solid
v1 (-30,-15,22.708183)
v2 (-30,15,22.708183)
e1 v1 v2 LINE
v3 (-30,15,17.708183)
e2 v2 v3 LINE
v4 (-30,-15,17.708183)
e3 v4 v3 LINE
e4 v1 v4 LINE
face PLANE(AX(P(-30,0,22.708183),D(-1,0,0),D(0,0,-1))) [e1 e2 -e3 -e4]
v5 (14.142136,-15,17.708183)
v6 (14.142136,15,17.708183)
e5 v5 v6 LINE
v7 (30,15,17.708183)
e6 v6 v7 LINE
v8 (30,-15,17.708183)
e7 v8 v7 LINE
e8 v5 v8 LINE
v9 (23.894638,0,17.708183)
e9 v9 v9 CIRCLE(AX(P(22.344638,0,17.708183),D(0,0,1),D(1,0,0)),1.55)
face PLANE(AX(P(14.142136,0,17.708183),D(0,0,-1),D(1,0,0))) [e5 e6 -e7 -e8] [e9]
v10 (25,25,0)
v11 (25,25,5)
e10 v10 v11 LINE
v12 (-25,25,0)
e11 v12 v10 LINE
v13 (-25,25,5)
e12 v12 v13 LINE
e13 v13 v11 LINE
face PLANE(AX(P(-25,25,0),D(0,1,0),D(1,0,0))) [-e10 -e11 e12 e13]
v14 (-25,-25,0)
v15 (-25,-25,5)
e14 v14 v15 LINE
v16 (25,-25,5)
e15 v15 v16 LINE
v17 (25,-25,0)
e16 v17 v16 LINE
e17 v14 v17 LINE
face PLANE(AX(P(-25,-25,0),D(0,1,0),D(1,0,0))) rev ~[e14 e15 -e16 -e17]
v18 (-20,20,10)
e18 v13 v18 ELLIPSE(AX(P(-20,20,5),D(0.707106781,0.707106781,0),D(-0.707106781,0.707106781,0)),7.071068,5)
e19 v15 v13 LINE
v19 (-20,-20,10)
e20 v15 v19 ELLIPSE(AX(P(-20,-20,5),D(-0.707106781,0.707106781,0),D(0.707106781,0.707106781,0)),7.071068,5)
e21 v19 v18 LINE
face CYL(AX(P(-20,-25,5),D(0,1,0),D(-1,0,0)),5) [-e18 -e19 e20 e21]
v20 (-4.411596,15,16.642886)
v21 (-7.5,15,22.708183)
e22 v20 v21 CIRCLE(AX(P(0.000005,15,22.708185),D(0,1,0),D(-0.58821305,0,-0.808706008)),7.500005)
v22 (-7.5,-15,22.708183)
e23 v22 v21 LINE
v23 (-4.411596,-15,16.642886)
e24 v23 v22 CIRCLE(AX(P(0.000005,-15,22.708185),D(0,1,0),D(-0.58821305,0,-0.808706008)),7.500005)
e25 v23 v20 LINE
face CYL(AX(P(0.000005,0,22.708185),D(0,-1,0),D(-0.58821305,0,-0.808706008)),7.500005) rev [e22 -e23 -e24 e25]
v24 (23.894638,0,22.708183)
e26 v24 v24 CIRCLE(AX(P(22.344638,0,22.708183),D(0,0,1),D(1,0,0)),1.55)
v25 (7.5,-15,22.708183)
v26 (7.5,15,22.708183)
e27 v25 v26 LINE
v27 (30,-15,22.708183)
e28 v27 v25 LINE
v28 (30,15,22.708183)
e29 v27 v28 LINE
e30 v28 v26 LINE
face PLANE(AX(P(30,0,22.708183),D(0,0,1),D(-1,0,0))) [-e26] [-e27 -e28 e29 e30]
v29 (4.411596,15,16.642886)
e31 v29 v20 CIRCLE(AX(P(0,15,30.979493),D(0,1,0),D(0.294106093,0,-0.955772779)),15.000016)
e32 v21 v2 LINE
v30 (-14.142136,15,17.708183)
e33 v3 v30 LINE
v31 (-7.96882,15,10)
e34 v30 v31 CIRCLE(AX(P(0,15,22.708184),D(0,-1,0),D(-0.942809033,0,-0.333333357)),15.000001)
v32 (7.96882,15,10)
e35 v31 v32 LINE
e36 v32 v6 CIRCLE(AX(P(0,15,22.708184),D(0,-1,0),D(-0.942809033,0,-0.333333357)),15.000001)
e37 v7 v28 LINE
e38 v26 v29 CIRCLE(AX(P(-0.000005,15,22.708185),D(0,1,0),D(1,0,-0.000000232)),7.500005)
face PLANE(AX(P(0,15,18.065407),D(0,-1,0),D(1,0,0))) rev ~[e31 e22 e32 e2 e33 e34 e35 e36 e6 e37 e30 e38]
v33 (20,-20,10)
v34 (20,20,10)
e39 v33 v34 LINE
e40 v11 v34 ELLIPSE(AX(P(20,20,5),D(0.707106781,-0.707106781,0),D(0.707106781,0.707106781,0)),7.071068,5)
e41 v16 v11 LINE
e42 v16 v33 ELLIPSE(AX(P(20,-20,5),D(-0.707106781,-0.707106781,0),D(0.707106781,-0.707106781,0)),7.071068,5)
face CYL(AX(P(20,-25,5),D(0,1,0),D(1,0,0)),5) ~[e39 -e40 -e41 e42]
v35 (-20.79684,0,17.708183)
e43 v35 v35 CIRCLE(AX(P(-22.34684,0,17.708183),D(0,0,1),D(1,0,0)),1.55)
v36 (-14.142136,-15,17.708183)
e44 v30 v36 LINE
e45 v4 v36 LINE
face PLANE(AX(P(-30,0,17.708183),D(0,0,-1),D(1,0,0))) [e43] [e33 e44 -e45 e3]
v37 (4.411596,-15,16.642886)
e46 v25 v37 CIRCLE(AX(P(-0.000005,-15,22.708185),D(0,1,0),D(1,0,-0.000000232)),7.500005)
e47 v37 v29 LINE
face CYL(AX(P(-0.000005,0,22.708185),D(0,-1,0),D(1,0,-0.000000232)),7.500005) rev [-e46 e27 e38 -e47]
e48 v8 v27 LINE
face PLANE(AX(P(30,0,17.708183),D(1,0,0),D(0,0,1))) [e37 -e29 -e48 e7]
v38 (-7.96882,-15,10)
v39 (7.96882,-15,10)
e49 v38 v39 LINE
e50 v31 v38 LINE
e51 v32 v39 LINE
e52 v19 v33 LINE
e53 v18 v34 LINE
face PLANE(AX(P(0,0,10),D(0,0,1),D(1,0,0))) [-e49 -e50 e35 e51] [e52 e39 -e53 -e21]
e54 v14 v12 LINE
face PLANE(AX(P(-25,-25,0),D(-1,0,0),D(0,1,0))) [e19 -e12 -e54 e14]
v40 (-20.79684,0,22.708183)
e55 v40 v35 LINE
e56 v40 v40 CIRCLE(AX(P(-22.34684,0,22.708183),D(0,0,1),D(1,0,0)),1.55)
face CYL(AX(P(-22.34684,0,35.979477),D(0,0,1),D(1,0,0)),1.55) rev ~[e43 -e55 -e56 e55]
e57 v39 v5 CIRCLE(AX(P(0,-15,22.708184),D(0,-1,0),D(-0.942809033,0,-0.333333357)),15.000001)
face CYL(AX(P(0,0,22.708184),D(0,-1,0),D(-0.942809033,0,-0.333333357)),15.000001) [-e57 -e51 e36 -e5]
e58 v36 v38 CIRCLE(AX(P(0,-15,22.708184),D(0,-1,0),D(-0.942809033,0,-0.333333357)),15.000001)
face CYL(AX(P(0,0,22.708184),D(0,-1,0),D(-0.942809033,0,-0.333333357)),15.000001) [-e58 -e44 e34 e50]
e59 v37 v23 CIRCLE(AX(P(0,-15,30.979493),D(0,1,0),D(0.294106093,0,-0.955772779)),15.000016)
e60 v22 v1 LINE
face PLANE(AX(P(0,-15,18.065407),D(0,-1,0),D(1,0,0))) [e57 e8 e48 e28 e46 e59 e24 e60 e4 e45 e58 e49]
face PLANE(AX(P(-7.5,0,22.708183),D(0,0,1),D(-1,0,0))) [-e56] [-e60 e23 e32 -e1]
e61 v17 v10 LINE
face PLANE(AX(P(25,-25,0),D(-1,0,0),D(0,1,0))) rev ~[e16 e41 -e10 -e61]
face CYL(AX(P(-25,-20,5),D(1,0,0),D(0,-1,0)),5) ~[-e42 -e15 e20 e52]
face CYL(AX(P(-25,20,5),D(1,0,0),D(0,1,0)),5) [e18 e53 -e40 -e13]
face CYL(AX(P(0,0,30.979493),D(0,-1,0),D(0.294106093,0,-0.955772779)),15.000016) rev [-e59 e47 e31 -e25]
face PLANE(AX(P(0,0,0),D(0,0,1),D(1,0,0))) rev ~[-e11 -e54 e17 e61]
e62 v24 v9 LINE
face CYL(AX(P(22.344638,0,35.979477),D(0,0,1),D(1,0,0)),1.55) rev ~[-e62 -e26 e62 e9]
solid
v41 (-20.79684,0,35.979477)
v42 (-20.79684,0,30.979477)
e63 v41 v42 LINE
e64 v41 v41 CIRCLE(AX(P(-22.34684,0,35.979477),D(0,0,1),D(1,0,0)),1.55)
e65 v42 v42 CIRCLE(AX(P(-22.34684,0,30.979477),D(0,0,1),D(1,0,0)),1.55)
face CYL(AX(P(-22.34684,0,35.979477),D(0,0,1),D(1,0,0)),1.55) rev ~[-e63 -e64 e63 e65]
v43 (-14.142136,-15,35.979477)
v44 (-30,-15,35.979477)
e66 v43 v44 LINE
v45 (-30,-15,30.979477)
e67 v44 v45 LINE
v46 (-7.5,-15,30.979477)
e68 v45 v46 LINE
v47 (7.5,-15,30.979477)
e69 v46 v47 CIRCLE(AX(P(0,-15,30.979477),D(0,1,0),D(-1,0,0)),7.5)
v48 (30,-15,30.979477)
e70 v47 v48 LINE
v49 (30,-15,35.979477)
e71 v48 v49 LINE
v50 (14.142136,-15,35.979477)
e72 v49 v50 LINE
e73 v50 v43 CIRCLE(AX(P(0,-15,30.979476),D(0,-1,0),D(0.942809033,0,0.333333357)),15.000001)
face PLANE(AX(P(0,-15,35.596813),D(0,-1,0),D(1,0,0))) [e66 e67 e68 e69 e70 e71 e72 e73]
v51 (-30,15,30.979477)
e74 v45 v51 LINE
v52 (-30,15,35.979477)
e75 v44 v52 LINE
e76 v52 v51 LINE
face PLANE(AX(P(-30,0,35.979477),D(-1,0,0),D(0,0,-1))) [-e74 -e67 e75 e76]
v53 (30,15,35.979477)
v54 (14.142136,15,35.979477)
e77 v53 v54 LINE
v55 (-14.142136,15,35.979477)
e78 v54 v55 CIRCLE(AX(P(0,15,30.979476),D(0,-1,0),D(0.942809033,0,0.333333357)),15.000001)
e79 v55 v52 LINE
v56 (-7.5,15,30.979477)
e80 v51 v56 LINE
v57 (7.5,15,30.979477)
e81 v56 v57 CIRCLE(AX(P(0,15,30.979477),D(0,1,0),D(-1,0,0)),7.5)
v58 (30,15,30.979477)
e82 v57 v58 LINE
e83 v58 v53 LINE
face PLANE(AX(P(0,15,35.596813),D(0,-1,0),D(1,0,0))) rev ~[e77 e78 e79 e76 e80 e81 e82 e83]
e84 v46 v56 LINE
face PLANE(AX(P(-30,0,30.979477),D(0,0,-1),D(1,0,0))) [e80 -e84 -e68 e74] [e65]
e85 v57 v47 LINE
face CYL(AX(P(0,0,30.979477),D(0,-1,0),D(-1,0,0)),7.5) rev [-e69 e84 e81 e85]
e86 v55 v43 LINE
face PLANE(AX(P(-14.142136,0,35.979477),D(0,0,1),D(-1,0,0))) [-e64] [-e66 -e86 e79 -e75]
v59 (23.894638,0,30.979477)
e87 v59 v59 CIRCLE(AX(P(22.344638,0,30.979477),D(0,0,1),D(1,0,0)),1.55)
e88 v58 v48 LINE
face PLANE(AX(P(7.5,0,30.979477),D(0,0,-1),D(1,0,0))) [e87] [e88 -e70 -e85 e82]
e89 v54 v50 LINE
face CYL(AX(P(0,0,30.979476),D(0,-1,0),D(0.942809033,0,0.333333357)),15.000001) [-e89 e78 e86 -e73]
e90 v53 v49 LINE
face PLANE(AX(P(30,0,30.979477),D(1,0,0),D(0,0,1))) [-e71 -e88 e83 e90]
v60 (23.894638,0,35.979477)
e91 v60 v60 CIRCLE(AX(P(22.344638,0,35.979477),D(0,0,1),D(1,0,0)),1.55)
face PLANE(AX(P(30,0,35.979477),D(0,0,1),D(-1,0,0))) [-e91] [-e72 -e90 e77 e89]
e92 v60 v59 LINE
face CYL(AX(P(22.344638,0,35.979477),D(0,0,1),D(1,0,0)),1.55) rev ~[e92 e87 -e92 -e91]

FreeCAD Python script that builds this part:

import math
import FreeCAD as App
import Part
import Sketcher
Q = App.Units.Quantity


def edges_at(feature, points):
    """Names of the edges that pass closest to the given points."""
    edges = feature.Shape.Edges
    near = lambda p: min(range(len(edges)), key=lambda i: edges[i].distToShape(Part.Vertex(*p))[0])
    return sorted({f"Edge{near(p) + 1}" for p in points})

doc = App.newDocument("Part")
body = doc.addObject("PartDesign::Body", "Body")
body.AllowCompound = True

# Sketch on XY plane
sketch1 = doc.addObject("Sketcher::SketchObject", "Sketch")
body.addObject(sketch1)
sketch1.AttachmentSupport = (doc.XY_Plane, [""])
sketch1.MapMode = "FlatFace"
sketch1.addGeometry([
    Part.LineSegment(App.Vector(-25, 25, 0), App.Vector(-25, -25, 0)),
    Part.LineSegment(App.Vector(-25, -25, 0), App.Vector(25, -25, 0)),
    Part.LineSegment(App.Vector(25, -25, 0), App.Vector(25, 25, 0)),
    Part.LineSegment(App.Vector(25, 25, 0), App.Vector(-25, 25, 0)),
], False)
sketch1.addConstraint([
    Sketcher.Constraint("Coincident", 0, 2, 1, 1),
    Sketcher.Constraint("Coincident", 1, 2, 2, 1),
    Sketcher.Constraint("Coincident", 2, 2, 3, 1),
    Sketcher.Constraint("Coincident", 3, 2, 0, 1),
    Sketcher.Constraint("Vertical", 0),
    Sketcher.Constraint("Horizontal", 1),
    Sketcher.Constraint("Vertical", 2),
    Sketcher.Constraint("Horizontal", 3),
    Sketcher.Constraint("Symmetric", 0, 2, 2, 2, -1, 1),
    Sketcher.Constraint("Equal", 3, 0),
    Sketcher.Constraint("DistanceX", 1, 1, 1, 2, Q("50 mm")),
])
pad1 = doc.addObject("PartDesign::Pad", "Pad")
body.addObject(pad1)
pad1.Profile = sketch1
pad1.Length = 10
doc.recompute()

fillet = doc.addObject("PartDesign::Fillet", "Fillet")
body.addObject(fillet)
fillet.Base = (pad1, edges_at(pad1, [
    (0, -25, 10),
    (-25, 0, 10),
    (25, 0, 10),
    (0, 25, 10),
]))
fillet.Radius = 5

# Sketch on XZ plane
sketch2 = doc.addObject("Sketcher::SketchObject", "Sketch001")
body.addObject(sketch2)
sketch2.AttachmentSupport = (doc.XZ_Plane, [""])
sketch2.MapMode = "FlatFace"
sketch2.addGeometry([
    Part.ArcOfCircle(Part.Circle(App.Vector(0, 31, 0), App.Vector(0, 0, 1), 8), math.radians(0), math.radians(180)),  # 0
    Part.LineSegment(App.Vector(8, 31, 0), App.Vector(30, 31, 0)),  # 1
    Part.LineSegment(App.Vector(30, 31, 0), App.Vector(30, 36, 0)),  # 2
    Part.LineSegment(App.Vector(30, 36, 0), App.Vector(14, 36, 0)),  # 3
    Part.ArcOfCircle(Part.Circle(App.Vector(0, 31, 0), App.Vector(0, 0, 1), 15), math.radians(19), math.radians(161)),  # 4
    Part.LineSegment(App.Vector(-14, 36, 0), App.Vector(-30, 36, 0)),  # 5
    Part.LineSegment(App.Vector(-30, 36, 0), App.Vector(-30, 31, 0)),  # 6
    Part.LineSegment(App.Vector(-30, 31, 0), App.Vector(-8, 31, 0)),  # 7
    Part.LineSegment(App.Vector(-30, 18, 0), App.Vector(-14, 18, 0)),  # 8
    Part.ArcOfCircle(Part.Circle(App.Vector(0, 23, 0), App.Vector(0, 0, 1), 15), math.radians(-161), math.radians(-19)),  # 9
    Part.LineSegment(App.Vector(14, 18, 0), App.Vector(30, 18, 0)),  # 10
    Part.LineSegment(App.Vector(30, 18, 0), App.Vector(30, 23, 0)),  # 11
    Part.LineSegment(App.Vector(30, 23, 0), App.Vector(8, 23, 0)),  # 12
    Part.ArcOfCircle(Part.Circle(App.Vector(0, 23, 0), App.Vector(0, 0, 1), 8), math.radians(-54), math.radians(0)),  # 13
    Part.ArcOfCircle(Part.Circle(App.Vector(0, 31, 0), App.Vector(0, 0, 1), 15), math.radians(-107), math.radians(-73)),  # 14
    Part.ArcOfCircle(Part.Circle(App.Vector(0, 23, 0), App.Vector(0, 0, 1), 8), math.radians(-180), math.radians(-126)),  # 15
    Part.LineSegment(App.Vector(-8, 23, 0), App.Vector(-30, 23, 0)),  # 16
    Part.LineSegment(App.Vector(-30, 23, 0), App.Vector(-30, 18, 0)),  # 17
], False)
sketch2.addConstraint([
    Sketcher.Constraint("Coincident", 0, 1, 1, 1),
    Sketcher.Constraint("Coincident", 1, 2, 2, 1),
    Sketcher.Constraint("Coincident", 2, 2, 3, 1),
    Sketcher.Constraint("Coincident", 3, 2, 4, 1),
    Sketcher.Constraint("Coincident", 4, 2, 5, 1),
    Sketcher.Constraint("Coincident", 5, 2, 6, 1),
    Sketcher.Constraint("Coincident", 6, 2, 7, 1),
    Sketcher.Constraint("Coincident", 7, 2, 0, 2),
    Sketcher.Constraint("Coincident", 8, 2, 9, 1),
    Sketcher.Constraint("Coincident", 9, 2, 10, 1),
    Sketcher.Constraint("Coincident", 10, 2, 11, 1),
    Sketcher.Constraint("Coincident", 11, 2, 12, 1),
    Sketcher.Constraint("Coincident", 12, 2, 13, 2),
    Sketcher.Constraint("Coincident", 13, 1, 14, 2),
    Sketcher.Constraint("Coincident", 14, 1, 15, 2),
    Sketcher.Constraint("Coincident", 15, 1, 16, 1),
    Sketcher.Constraint("Coincident", 16, 2, 17, 1),
    Sketcher.Constraint("Coincident", 17, 2, 8, 1),
    Sketcher.Constraint("Horizontal", 1),
    Sketcher.Constraint("Vertical", 2),
    Sketcher.Constraint("Horizontal", 3),
    Sketcher.Constraint("Horizontal", 5),
    Sketcher.Constraint("Vertical", 6),
    Sketcher.Constraint("Horizontal", 7),
    Sketcher.Constraint("Horizontal", 8),
    Sketcher.Constraint("Horizontal", 10),
    Sketcher.Constraint("Vertical", 11),
    Sketcher.Constraint("Horizontal", 12),
    Sketcher.Constraint("Horizontal", 16),
    Sketcher.Constraint("Vertical", 17),
    Sketcher.Constraint("Coincident", 4, 3, 0, 3),
    Sketcher.Constraint("Coincident", 13, 3, 9, 3),
    Sketcher.Constraint("Coincident", 15, 3, 9, 3),
    Sketcher.Constraint("Equal", 4, 9),
    Sketcher.Constraint("Equal", 13, 15),
    Sketcher.Constraint("Symmetric", 3, 2, 4, 2, -2),
    Sketcher.Constraint("Symmetric", 1, 2, 6, 2, -2),
    Sketcher.Constraint("Symmetric", 8, 2, 9, 2, -2),
    Sketcher.Constraint("Symmetric", 11, 2, 16, 2, -2),
    Sketcher.Constraint("PointOnObject", 14, 3, -2),
    Sketcher.Constraint("Horizontal", 4, 3, 0, 1),
    Sketcher.Constraint("Horizontal", 15, 3, 11, 2),
    Sketcher.Constraint("Vertical", 4, 2, 8, 2),
    Sketcher.Constraint("Vertical", 2, 2, 10, 2),
    Sketcher.Constraint("Vertical", 0, 1, 12, 2),
    Sketcher.Constraint("Radius", 4, Q("15.000001 mm")),
    Sketcher.Constraint("Radius", 0, Q("7.5 mm")),
    Sketcher.Constraint("DistanceY", 2, 1, 2, 2, Q("5 mm")),
    Sketcher.Constraint("DistanceX", 1, 1, 1, 2, Q("22.5 mm")),
    Sketcher.Constraint("Radius", 14, Q("15.000016 mm")),
    Sketcher.Constraint("DistanceY", 13, 1, 15, 3, Q("6.065299 mm")),
    Sketcher.Constraint("DistanceY", 13, 3, 4, 3, Q("8.271292 mm")),
    Sketcher.Constraint("DistanceY", -1, 1, 0, 3, Q("30.979477 mm")),
])
pad2 = doc.addObject("PartDesign::Pad", "Pad001")
body.addObject(pad2)
pad2.Profile = sketch2
pad2.Type = "TwoLengths"
pad2.Length = 15
pad2.Length2 = 15

# Sketch on XY plane
sketch3 = doc.addObject("Sketcher::SketchObject", "Sketch002")
body.addObject(sketch3)
sketch3.AttachmentSupport = (doc.XY_Plane, [""])
sketch3.MapMode = "FlatFace"
sketch3.AttachmentOffset = App.Placement(App.Vector(0, 0, 35.979477), App.Rotation())
sketch3.addGeometry([
    Part.Circle(App.Vector(-22.3, 0, 0), App.Vector(0, 0, 1), 1.6),
    Part.Circle(App.Vector(22.3, 0, 0), App.Vector(0, 0, 1), 1.6),
], False)
sketch3.addConstraint([
    Sketcher.Constraint("Equal", 0, 1),
    Sketcher.Constraint("PointOnObject", 0, 3, -1),
    Sketcher.Constraint("PointOnObject", 1, 3, -1),
    Sketcher.Constraint("Diameter", 0, Q("3.1 mm")),
    Sketcher.Constraint("DistanceX", 0, 3, -1, 1, Q("22.34684 mm")),
    Sketcher.Constraint("DistanceX", -1, 1, 1, 3, Q("22.344638 mm")),
])
pocket1 = doc.addObject("PartDesign::Pocket", "Pocket")
body.addObject(pocket1)
pocket1.Profile = sketch3
pocket1.Length = 25

doc.recompute()
